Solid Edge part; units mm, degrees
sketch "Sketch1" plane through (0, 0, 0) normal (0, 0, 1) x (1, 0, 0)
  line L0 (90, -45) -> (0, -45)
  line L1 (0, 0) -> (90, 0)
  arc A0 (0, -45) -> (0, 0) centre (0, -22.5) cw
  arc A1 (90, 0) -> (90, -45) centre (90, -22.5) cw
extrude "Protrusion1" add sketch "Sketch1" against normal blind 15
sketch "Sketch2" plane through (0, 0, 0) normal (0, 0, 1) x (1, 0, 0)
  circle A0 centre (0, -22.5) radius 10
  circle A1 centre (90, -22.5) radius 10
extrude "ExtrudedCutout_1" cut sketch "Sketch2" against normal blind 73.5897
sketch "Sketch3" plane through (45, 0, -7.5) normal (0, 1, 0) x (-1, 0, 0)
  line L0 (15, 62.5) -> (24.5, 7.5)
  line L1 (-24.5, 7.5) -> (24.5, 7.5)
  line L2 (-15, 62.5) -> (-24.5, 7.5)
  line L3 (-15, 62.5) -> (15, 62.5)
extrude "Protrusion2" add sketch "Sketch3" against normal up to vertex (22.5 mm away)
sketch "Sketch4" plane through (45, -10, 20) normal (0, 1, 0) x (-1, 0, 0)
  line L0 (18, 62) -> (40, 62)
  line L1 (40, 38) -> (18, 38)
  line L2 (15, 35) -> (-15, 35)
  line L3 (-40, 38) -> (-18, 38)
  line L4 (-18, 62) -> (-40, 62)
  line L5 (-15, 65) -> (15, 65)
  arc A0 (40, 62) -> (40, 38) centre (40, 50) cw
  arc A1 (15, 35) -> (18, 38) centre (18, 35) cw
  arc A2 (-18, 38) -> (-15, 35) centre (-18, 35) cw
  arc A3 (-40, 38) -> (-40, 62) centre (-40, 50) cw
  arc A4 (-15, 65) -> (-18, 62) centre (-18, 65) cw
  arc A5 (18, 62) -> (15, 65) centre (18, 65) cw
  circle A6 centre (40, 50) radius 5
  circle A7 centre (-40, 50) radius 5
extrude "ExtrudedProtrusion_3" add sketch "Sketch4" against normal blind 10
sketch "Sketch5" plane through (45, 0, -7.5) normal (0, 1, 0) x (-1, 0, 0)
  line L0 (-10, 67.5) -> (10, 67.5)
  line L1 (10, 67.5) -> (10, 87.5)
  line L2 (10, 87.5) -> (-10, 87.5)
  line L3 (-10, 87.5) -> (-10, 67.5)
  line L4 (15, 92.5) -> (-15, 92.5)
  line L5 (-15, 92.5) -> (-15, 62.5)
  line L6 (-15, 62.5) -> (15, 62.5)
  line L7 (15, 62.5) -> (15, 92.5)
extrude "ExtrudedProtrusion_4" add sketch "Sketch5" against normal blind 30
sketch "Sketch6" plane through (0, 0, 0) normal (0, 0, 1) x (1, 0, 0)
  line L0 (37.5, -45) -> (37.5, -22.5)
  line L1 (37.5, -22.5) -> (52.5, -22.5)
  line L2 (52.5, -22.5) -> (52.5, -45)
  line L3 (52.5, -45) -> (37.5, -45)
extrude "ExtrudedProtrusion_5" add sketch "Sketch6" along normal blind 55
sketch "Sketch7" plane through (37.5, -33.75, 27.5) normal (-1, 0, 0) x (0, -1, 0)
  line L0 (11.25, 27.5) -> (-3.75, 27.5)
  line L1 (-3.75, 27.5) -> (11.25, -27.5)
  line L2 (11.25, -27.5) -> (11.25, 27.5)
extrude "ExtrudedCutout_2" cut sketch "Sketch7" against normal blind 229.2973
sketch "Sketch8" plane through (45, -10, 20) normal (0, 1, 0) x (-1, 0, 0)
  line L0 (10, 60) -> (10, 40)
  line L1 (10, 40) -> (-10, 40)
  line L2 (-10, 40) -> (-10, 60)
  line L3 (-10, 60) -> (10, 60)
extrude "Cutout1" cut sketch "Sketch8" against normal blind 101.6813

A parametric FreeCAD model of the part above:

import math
import FreeCAD as App
import Part
import Sketcher

doc = App.newDocument("Part")
params = doc.addObject("Spreadsheet::Sheet", "Params")
for row, (alias, value) in enumerate([
    ("sketch1_radius", "22.5 mm"),
    ("sketch1_width", "90 mm"),
    ("pad1_length", "15 mm"),
    ("sketch2_diameter", "20 mm"),
    ("pocket1_length", "73.5897 mm"),
    ("sketch3_width", "30 mm"),
    ("sketch3_width2", "49 mm"),
    ("pad2_length", "22.5 mm"),
    ("sketch4_diameter", "10 mm"),
    ("sketch4_radius", "3 mm"),
    ("sketch4_radius2", "12 mm"),
    ("sketch4_width", "22 mm"),
    ("sketch4_width2", "30 mm"),
    ("pad3_length", "10 mm"),
    ("sketch5_width", "30 mm"),
    ("sketch5_width2", "20 mm"),
    ("pad4_length", "30 mm"),
    ("sketch6_width", "15 mm"),
    ("sketch6_height", "22.5 mm"),
    ("pad5_length", "55 mm"),
    ("sketch7_width", "15 mm"),
    ("sketch7_height", "55 mm"),
    ("pocket2_length", "229.2973 mm"),
    ("sketch8_width", "20 mm"),
    ("pocket3_length", "101.6813 mm"),
], start=1):
    params.set(f"A{row}", alias)
    params.set(f"B{row}", "=" + value)
    params.setAlias(f"B{row}", alias)

body = doc.addObject("PartDesign::Body", "Body")

# Sketch on XY plane
sketch1 = body.newObject("Sketcher::SketchObject", "Sketch")
sketch1.AttachmentSupport = (doc.getObject("XY_Plane"), [""])
sketch1.MapMode = "FlatFace"
sketch1.addGeometry(Part.LineSegment(App.Vector(0, -45, 0), App.Vector(90, -45, 0)), False)
sketch1.addGeometry(Part.ArcOfCircle(Part.Circle(App.Vector(90, -22, 0), App.Vector(0, 0, 1), 22), math.radians(-90), math.radians(90)), False)
sketch1.addGeometry(Part.LineSegment(App.Vector(90, 0, 0), App.Vector(0, 0, 0)), False)
sketch1.addGeometry(Part.ArcOfCircle(Part.Circle(App.Vector(0, -22, 0), App.Vector(0, 0, 1), 22), math.radians(90), math.radians(270)), False)
sketch1.addConstraint(Sketcher.Constraint("Tangent", 0, 2, 1, 1))
sketch1.addConstraint(Sketcher.Constraint("Tangent", 1, 2, 2, 1))
sketch1.addConstraint(Sketcher.Constraint("Tangent", 2, 2, 3, 1))
sketch1.addConstraint(Sketcher.Constraint("Tangent", 3, 2, 0, 1))
sketch1.addConstraint(Sketcher.Constraint("Horizontal", 0))
sketch1.addConstraint(Sketcher.Constraint("Horizontal", 2))
sketch1.addConstraint(Sketcher.Constraint("Coincident", 2, 2, -1, 1))
sketch1.addConstraint(Sketcher.Constraint("Radius", 1, 22.5))
sketch1.addConstraint(Sketcher.Constraint("DistanceX", 0, 1, 0, 2, 90.0))
sketch1.setExpression("Constraints[7]", "Params.sketch1_radius")
sketch1.setExpression("Constraints[8]", "Params.sketch1_width")
pad1 = body.newObject("PartDesign::Pad", "Pad")
pad1.Profile = sketch1
pad1.setExpression("Length", "Params.pad1_length")
pad1.Reversed = True

# Sketch on XY plane
sketch2 = body.newObject("Sketcher::SketchObject", "Sketch001")
sketch2.AttachmentSupport = (doc.getObject("XY_Plane"), [""])
sketch2.MapMode = "FlatFace"
sketch2.addGeometry(Part.Circle(App.Vector(0, -22, 0), App.Vector(0, 0, 1), 10), False)
sketch2.addGeometry(Part.Circle(App.Vector(90, -22, 0), App.Vector(0, 0, 1), 10), False)
sketch2.addConstraint(Sketcher.Constraint("Equal", 0, 1))
sketch2.addConstraint(Sketcher.Constraint("PointOnObject", 0, 3, -2))
sketch2.addConstraint(Sketcher.Constraint("Horizontal", 0, 3, 1, 3))
sketch2.addConstraint(Sketcher.Constraint("Diameter", 0, 20.0))
sketch2.addConstraint(Sketcher.Constraint("DistanceX", -1, 1, 1, 3, 90.0))
sketch2.addConstraint(Sketcher.Constraint("DistanceY", 0, 3, -1, 1, 22.5))
sketch2.setExpression("Constraints[3]", "Params.sketch2_diameter")
pocket1 = body.newObject("PartDesign::Pocket", "Pocket")
pocket1.Profile = sketch2
pocket1.setExpression("Length", "Params.pocket1_length")

# Sketch on XZ plane
sketch3 = body.newObject("Sketcher::SketchObject", "Sketch002")
sketch3.AttachmentSupport = (doc.getObject("XZ_Plane"), [""])
sketch3.MapMode = "FlatFace"
sketch3.addGeometry(Part.LineSegment(App.Vector(20, 0, 0), App.Vector(30, 55, 0)), False)
sketch3.addGeometry(Part.LineSegment(App.Vector(30, 55, 0), App.Vector(60, 55, 0)), False)
sketch3.addGeometry(Part.LineSegment(App.Vector(60, 55, 0), App.Vector(70, 0, 0)), False)
sketch3.addGeometry(Part.LineSegment(App.Vector(70, 0, 0), App.Vector(20, 0, 0)), False)
sketch3.addConstraint(Sketcher.Constraint("Coincident", 0, 2, 1, 1))
sketch3.addConstraint(Sketcher.Constraint("Coincident", 1, 2, 2, 1))
sketch3.addConstraint(Sketcher.Constraint("Coincident", 2, 2, 3, 1))
sketch3.addConstraint(Sketcher.Constraint("Coincident", 3, 2, 0, 1))
sketch3.addConstraint(Sketcher.Constraint("Horizontal", 1))
sketch3.addConstraint(Sketcher.Constraint("Horizontal", 3))
sketch3.addConstraint(Sketcher.Constraint("PointOnObject", 2, 2, -1))
sketch3.addConstraint(Sketcher.Constraint("Equal", 0, 2))
sketch3.addConstraint(Sketcher.Constraint("DistanceX", 1, 1, 1, 2, 30.0))
sketch3.addConstraint(Sketcher.Constraint("DistanceX", 3, 2, 3, 1, 49.0))
sketch3.addConstraint(Sketcher.Constraint("DistanceX", -1, 1, 0, 2, 30.0))
sketch3.addConstraint(Sketcher.Constraint("DistanceY", -1, 1, 0, 2, 55.0))
sketch3.setExpression("Constraints[8]", "Params.sketch3_width")
sketch3.setExpression("Constraints[9]", "Params.sketch3_width2")
pad2 = body.newObject("PartDesign::Pad", "Pad001")
pad2.Profile = sketch3
pad2.setExpression("Length", "Params.pad2_length")

# Sketch on XZ plane
sketch4 = body.newObject("Sketcher::SketchObject", "Sketch003")
sketch4.AttachmentSupport = (doc.getObject("XZ_Plane"), [""])
sketch4.MapMode = "FlatFace"
sketch4.AttachmentOffset = App.Placement(App.Vector(0, 0, 10), App.Rotation())
sketch4.addGeometry(Part.LineSegment(App.Vector(5, 82, 0), App.Vector(27, 82, 0)), False)
sketch4.addGeometry(Part.ArcOfCircle(Part.Circle(App.Vector(27, 85, 0), App.Vector(0, 0, 1), 3), math.radians(-90), math.radians(0)), False)
sketch4.addGeometry(Part.LineSegment(App.Vector(30, 85, 0), App.Vector(60, 85, 0)), False)
sketch4.addGeometry(Part.ArcOfCircle(Part.Circle(App.Vector(63, 85, 0), App.Vector(0, 0, 1), 3), math.radians(180), math.radians(270)), False)
sketch4.addGeometry(Part.LineSegment(App.Vector(63, 82, 0), App.Vector(85, 82, 0)), False)
sketch4.addGeometry(Part.ArcOfCircle(Part.Circle(App.Vector(85, 70, 0), App.Vector(0, 0, 1), 12), math.radians(-90), math.radians(90)), False)
sketch4.addGeometry(Part.LineSegment(App.Vector(85, 58, 0), App.Vector(63, 58, 0)), False)
sketch4.addGeometry(Part.ArcOfCircle(Part.Circle(App.Vector(63, 55, 0), App.Vector(0, 0, 1), 3), math.radians(90), math.radians(180)), False)
sketch4.addGeometry(Part.LineSegment(App.Vector(60, 55, 0), App.Vector(30, 55, 0)), False)
sketch4.addGeometry(Part.ArcOfCircle(Part.Circle(App.Vector(27, 55, 0), App.Vector(0, 0, 1), 3), math.radians(0), math.radians(90)), False)
sketch4.addGeometry(Part.LineSegment(App.Vector(27, 58, 0), App.Vector(5, 58, 0)), False)
sketch4.addGeometry(Part.ArcOfCircle(Part.Circle(App.Vector(5, 70, 0), App.Vector(0, 0, 1), 12), math.radians(90), math.radians(270)), False)
sketch4.addGeometry(Part.Circle(App.Vector(85, 70, 0), App.Vector(0, 0, 1), 5), False)
sketch4.addGeometry(Part.Circle(App.Vector(5, 70, 0), App.Vector(0, 0, 1), 5), False)
sketch4.addConstraint(Sketcher.Constraint("Tangent", 0, 2, 1, 1))
sketch4.addConstraint(Sketcher.Constraint("Coincident", 1, 2, 2, 1))
sketch4.addConstraint(Sketcher.Constraint("Coincident", 2, 2, 3, 1))
sketch4.addConstraint(Sketcher.Constraint("Tangent", 3, 2, 4, 1))
sketch4.addConstraint(Sketcher.Constraint("Tangent", 4, 2, 5, 2))
sketch4.addConstraint(Sketcher.Constraint("Tangent", 5, 1, 6, 1))
sketch4.addConstraint(Sketcher.Constraint("Tangent", 6, 2, 7, 1))
sketch4.addConstraint(Sketcher.Constraint("Coincident", 7, 2, 8, 1))
sketch4.addConstraint(Sketcher.Constraint("Coincident", 8, 2, 9, 1))
sketch4.addConstraint(Sketcher.Constraint("Tangent", 9, 2, 10, 1))
sketch4.addConstraint(Sketcher.Constraint("Tangent", 10, 2, 11, 2))
sketch4.addConstraint(Sketcher.Constraint("Tangent", 11, 1, 0, 1))
sketch4.addConstraint(Sketcher.Constraint("Horizontal", 0))
sketch4.addConstraint(Sketcher.Constraint("Horizontal", 2))
sketch4.addConstraint(Sketcher.Constraint("Horizontal", 4))
sketch4.addConstraint(Sketcher.Constraint("Horizontal", 6))
sketch4.addConstraint(Sketcher.Constraint("Horizontal", 8))
sketch4.addConstraint(Sketcher.Constraint("Horizontal", 10))
sketch4.addConstraint(Sketcher.Constraint("Coincident", 12, 3, 5, 3))
sketch4.addConstraint(Sketcher.Constraint("Coincident", 13, 3, 11, 3))
sketch4.addConstraint(Sketcher.Constraint("Equal", 1, 3))
sketch4.addConstraint(Sketcher.Constraint("Equal", 3, 7))
sketch4.addConstraint(Sketcher.Constraint("Equal", 7, 9))
sketch4.addConstraint(Sketcher.Constraint("Equal", 5, 11))
sketch4.addConstraint(Sketcher.Constraint("Equal", 12, 13))
sketch4.addConstraint(Sketcher.Constraint("Horizontal", 1, 3, 3, 3))
sketch4.addConstraint(Sketcher.Constraint("Horizontal", 3, 3, 1, 2))
sketch4.addConstraint(Sketcher.Constraint("Horizontal", 9, 3, 7, 2))
sketch4.addConstraint(Sketcher.Constraint("Vertical", 3, 3, 7, 3))
sketch4.addConstraint(Sketcher.Constraint("Vertical", 1, 3, 9, 3))
sketch4.addConstraint(Sketcher.Constraint("Equal", 0, 4))
sketch4.addConstraint(Sketcher.Constraint("Diameter", 12, 10.0))
sketch4.addConstraint(Sketcher.Constraint("Radius", 1, 3.0))
sketch4.addConstraint(Sketcher.Constraint("Radius", 5, 12.0))
sketch4.addConstraint(Sketcher.Constraint("DistanceX", 0, 1, 0, 2, 22.0))
sketch4.addConstraint(Sketcher.Constraint("DistanceX", 2, 1, 2, 2, 30.0))
sketch4.addConstraint(Sketcher.Constraint("DistanceX", -1, 1, 1, 3, 27.0))
sketch4.addConstraint(Sketcher.Constraint("DistanceY", -1, 1, 1, 3, 85.0))
sketch4.setExpression("Constraints[31]", "Params.sketch4_diameter")
sketch4.setExpression("Constraints[32]", "Params.sketch4_radius")
sketch4.setExpression("Constraints[33]", "Params.sketch4_radius2")
sketch4.setExpression("Constraints[34]", "Params.sketch4_width")
sketch4.setExpression("Constraints[35]", "Params.sketch4_width2")
pad3 = body.newObject("PartDesign::Pad", "Pad002")
pad3.Profile = sketch4
pad3.setExpression("Length", "Params.pad3_length")

# Sketch on XZ plane
sketch5 = body.newObject("Sketcher::SketchObject", "Sketch004")
sketch5.AttachmentSupport = (doc.getObject("XZ_Plane"), [""])
sketch5.MapMode = "FlatFace"
sketch5.addGeometry(Part.LineSegment(App.Vector(30, 55, 0), App.Vector(30, 85, 0)), False)
sketch5.addGeometry(Part.LineSegment(App.Vector(30, 85, 0), App.Vector(60, 85, 0)), False)
sketch5.addGeometry(Part.LineSegment(App.Vector(60, 85, 0), App.Vector(60, 55, 0)), False)
sketch5.addGeometry(Part.LineSegment(App.Vector(60, 55, 0), App.Vector(30, 55, 0)), False)
sketch5.addGeometry(Part.LineSegment(App.Vector(35, 60, 0), App.Vector(55, 60, 0)), False)
sketch5.addGeometry(Part.LineSegment(App.Vector(55, 60, 0), App.Vector(55, 80, 0)), False)
sketch5.addGeometry(Part.LineSegment(App.Vector(55, 80, 0), App.Vector(35, 80, 0)), False)
sketch5.addGeometry(Part.LineSegment(App.Vector(35, 80, 0), App.Vector(35, 60, 0)), False)
sketch5.addConstraint(Sketcher.Constraint("Coincident", 0, 2, 1, 1))
sketch5.addConstraint(Sketcher.Constraint("Coincident", 1, 2, 2, 1))
sketch5.addConstraint(Sketcher.Constraint("Coincident", 2, 2, 3, 1))
sketch5.addConstraint(Sketcher.Constraint("Coincident", 3, 2, 0, 1))
sketch5.addConstraint(Sketcher.Constraint("Coincident", 4, 2, 5, 1))
sketch5.addConstraint(Sketcher.Constraint("Coincident", 5, 2, 6, 1))
sketch5.addConstraint(Sketcher.Constraint("Coincident", 6, 2, 7, 1))
sketch5.addConstraint(Sketcher.Constraint("Coincident", 7, 2, 4, 1))
sketch5.addConstraint(Sketcher.Constraint("Vertical", 0))
sketch5.addConstraint(Sketcher.Constraint("Horizontal", 1))
sketch5.addConstraint(Sketcher.Constraint("Vertical", 2))
sketch5.addConstraint(Sketcher.Constraint("Horizontal", 3))
sketch5.addConstraint(Sketcher.Constraint("Horizontal", 4))
sketch5.addConstraint(Sketcher.Constraint("Vertical", 5))
sketch5.addConstraint(Sketcher.Constraint("Horizontal", 6))
sketch5.addConstraint(Sketcher.Constraint("Vertical", 7))
sketch5.addConstraint(Sketcher.Constraint("Equal", 3, 0))
sketch5.addConstraint(Sketcher.Constraint("Equal", 6, 5))
sketch5.addConstraint(Sketcher.Constraint("DistanceX", 1, 1, 1, 2, 30.0))
sketch5.addConstraint(Sketcher.Constraint("DistanceX", 4, 1, 4, 2, 20.0))
sketch5.addConstraint(Sketcher.Constraint("DistanceX", -1, 1, 0, 2, 30.0))
sketch5.addConstraint(Sketcher.Constraint("DistanceY", -1, 1, 0, 2, 85.0))
sketch5.addConstraint(Sketcher.Constraint("DistanceX", -1, 1, 4, 2, 55.0))
sketch5.addConstraint(Sketcher.Constraint("DistanceY", -1, 1, 4, 2, 60.0))
sketch5.setExpression("Constraints[18]", "Params.sketch5_width")
sketch5.setExpression("Constraints[19]", "Params.sketch5_width2")
pad4 = body.newObject("PartDesign::Pad", "Pad003")
pad4.Profile = sketch5
pad4.setExpression("Length", "Params.pad4_length")

# Sketch on XY plane
sketch6 = body.newObject("Sketcher::SketchObject", "Sketch005")
sketch6.AttachmentSupport = (doc.getObject("XY_Plane"), [""])
sketch6.MapMode = "FlatFace"
sketch6.addGeometry(Part.LineSegment(App.Vector(38, -22, 0), App.Vector(38, -45, 0)), False)
sketch6.addGeometry(Part.LineSegment(App.Vector(38, -45, 0), App.Vector(52, -45, 0)), False)
sketch6.addGeometry(Part.LineSegment(App.Vector(52, -45, 0), App.Vector(52, -22, 0)), False)
sketch6.addGeometry(Part.LineSegment(App.Vector(52, -22, 0), App.Vector(38, -22, 0)), False)
sketch6.addConstraint(Sketcher.Constraint("Coincident", 0, 2, 1, 1))
sketch6.addConstraint(Sketcher.Constraint("Coincident", 1, 2, 2, 1))
sketch6.addConstraint(Sketcher.Constraint("Coincident", 2, 2, 3, 1))
sketch6.addConstraint(Sketcher.Constraint("Coincident", 3, 2, 0, 1))
sketch6.addConstraint(Sketcher.Constraint("Vertical", 0))
sketch6.addConstraint(Sketcher.Constraint("Horizontal", 1))
sketch6.addConstraint(Sketcher.Constraint("Vertical", 2))
sketch6.addConstraint(Sketcher.Constraint("Horizontal", 3))
sketch6.addConstraint(Sketcher.Constraint("DistanceX", 1, 1, 1, 2, 15.0))
sketch6.addConstraint(Sketcher.Constraint("DistanceY", 0, 2, 0, 1, 22.5))
sketch6.addConstraint(Sketcher.Constraint("DistanceY", 0, 2, -1, 1, 45.0))
sketch6.addConstraint(Sketcher.Constraint("DistanceX", -1, 1, 0, 2, 37.5))
sketch6.setExpression("Constraints[8]", "Params.sketch6_width")
sketch6.setExpression("Constraints[9]", "Params.sketch6_height")
pad5 = body.newObject("PartDesign::Pad", "Pad004")
pad5.Profile = sketch6
pad5.setExpression("Length", "Params.pad5_length")

# Sketch on YZ plane
sketch7 = body.newObject("Sketcher::SketchObject", "Sketch006")
sketch7.AttachmentSupport = (doc.getObject("YZ_Plane"), [""])
sketch7.MapMode = "FlatFace"
sketch7.AttachmentOffset = App.Placement(App.Vector(0, 0, 37.5), App.Rotation())
sketch7.addGeometry(Part.LineSegment(App.Vector(-45, 0, 0), App.Vector(-45, 55, 0)), False)
sketch7.addGeometry(Part.LineSegment(App.Vector(-45, 55, 0), App.Vector(-30, 55, 0)), False)
sketch7.addGeometry(Part.LineSegment(App.Vector(-30, 55, 0), App.Vector(-45, 0, 0)), False)
sketch7.addConstraint(Sketcher.Constraint("Coincident", 0, 2, 1, 1))
sketch7.addConstraint(Sketcher.Constraint("Coincident", 1, 2, 2, 1))
sketch7.addConstraint(Sketcher.Constraint("Coincident", 2, 2, 0, 1))
sketch7.addConstraint(Sketcher.Constraint("Vertical", 0))
sketch7.addConstraint(Sketcher.Constraint("Horizontal", 1))
sketch7.addConstraint(Sketcher.Constraint("PointOnObject", 2, 2, -1))
sketch7.addConstraint(Sketcher.Constraint("DistanceX", 1, 1, 1, 2, 15.0))
sketch7.addConstraint(Sketcher.Constraint("DistanceY", 0, 1, 0, 2, 55.0))
sketch7.addConstraint(Sketcher.Constraint("DistanceX", 0, 2, -1, 1, 45.0))
sketch7.setExpression("Constraints[6]", "Params.sketch7_width")
sketch7.setExpression("Constraints[7]", "Params.sketch7_height")
pocket2 = body.newObject("PartDesign::Pocket", "Pocket001")
pocket2.Profile = sketch7
pocket2.setExpression("Length", "Params.pocket2_length")
pocket2.Reversed = True

# Sketch on XZ plane
sketch8 = body.newObject("Sketcher::SketchObject", "Sketch007")
sketch8.AttachmentSupport = (doc.getObject("XZ_Plane"), [""])
sketch8.MapMode = "FlatFace"
sketch8.AttachmentOffset = App.Placement(App.Vector(0, 0, 10), App.Rotation())
sketch8.addGeometry(Part.LineSegment(App.Vector(35, 60, 0), App.Vector(35, 80, 0)), False)
sketch8.addGeometry(Part.LineSegment(App.Vector(35, 80, 0), App.Vector(55, 80, 0)), False)
sketch8.addGeometry(Part.LineSegment(App.Vector(55, 80, 0), App.Vector(55, 60, 0)), False)
sketch8.addGeometry(Part.LineSegment(App.Vector(55, 60, 0), App.Vector(35, 60, 0)), False)
sketch8.addConstraint(Sketcher.Constraint("Coincident", 0, 2, 1, 1))
sketch8.addConstraint(Sketcher.Constraint("Coincident", 1, 2, 2, 1))
sketch8.addConstraint(Sketcher.Constraint("Coincident", 2, 2, 3, 1))
sketch8.addConstraint(Sketcher.Constraint("Coincident", 3, 2, 0, 1))
sketch8.addConstraint(Sketcher.Constraint("Vertical", 0))
sketch8.addConstraint(Sketcher.Constraint("Horizontal", 1))
sketch8.addConstraint(Sketcher.Constraint("Vertical", 2))
sketch8.addConstraint(Sketcher.Constraint("Horizontal", 3))
sketch8.addConstraint(Sketcher.Constraint("Equal", 3, 0))
sketch8.addConstraint(Sketcher.Constraint("DistanceX", 1, 1, 1, 2, 20.0))
sketch8.addConstraint(Sketcher.Constraint("DistanceX", -1, 1, 0, 2, 35.0))
sketch8.addConstraint(Sketcher.Constraint("DistanceY", -1, 1, 0, 2, 80.0))
sketch8.setExpression("Constraints[9]", "Params.sketch8_width")
pocket3 = body.newObject("PartDesign::Pocket", "Pocket002")
pocket3.Profile = sketch8
pocket3.setExpression("Length", "Params.pocket3_length")
pocket3.Reversed = True

doc.recompute()
